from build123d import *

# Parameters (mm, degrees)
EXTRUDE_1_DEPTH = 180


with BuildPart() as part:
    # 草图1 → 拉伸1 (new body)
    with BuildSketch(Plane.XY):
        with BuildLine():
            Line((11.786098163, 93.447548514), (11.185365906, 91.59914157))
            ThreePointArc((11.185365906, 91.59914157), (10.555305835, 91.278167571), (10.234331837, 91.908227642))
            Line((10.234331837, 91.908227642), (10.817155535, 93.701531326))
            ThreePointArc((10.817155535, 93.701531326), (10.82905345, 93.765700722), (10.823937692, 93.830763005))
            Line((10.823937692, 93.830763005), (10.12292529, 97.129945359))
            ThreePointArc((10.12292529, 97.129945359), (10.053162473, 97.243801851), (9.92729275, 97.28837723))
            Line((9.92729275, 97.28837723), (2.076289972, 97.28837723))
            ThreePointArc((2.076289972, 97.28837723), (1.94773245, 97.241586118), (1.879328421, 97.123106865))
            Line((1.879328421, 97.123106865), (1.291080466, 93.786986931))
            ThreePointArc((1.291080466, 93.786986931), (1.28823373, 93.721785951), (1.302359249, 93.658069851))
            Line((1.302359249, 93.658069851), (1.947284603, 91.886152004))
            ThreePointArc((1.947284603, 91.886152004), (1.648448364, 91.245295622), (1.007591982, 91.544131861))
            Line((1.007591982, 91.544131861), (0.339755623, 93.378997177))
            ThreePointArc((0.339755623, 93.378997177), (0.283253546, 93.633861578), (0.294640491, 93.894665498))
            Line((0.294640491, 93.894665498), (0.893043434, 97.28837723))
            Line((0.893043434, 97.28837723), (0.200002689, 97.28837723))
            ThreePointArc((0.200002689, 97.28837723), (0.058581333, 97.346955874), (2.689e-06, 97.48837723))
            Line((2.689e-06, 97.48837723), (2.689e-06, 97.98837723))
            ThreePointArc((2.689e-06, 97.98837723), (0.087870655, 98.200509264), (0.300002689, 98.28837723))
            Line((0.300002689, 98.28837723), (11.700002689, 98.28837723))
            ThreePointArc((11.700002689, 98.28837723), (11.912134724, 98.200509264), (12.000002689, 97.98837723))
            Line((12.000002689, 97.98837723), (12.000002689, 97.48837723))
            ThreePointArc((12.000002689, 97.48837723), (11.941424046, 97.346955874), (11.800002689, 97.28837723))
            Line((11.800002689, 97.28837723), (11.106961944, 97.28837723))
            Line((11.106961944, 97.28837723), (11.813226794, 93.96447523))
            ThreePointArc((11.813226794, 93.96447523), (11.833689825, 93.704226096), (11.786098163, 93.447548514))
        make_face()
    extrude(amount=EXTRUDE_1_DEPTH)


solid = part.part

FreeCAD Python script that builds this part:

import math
import FreeCAD as App
import Part
import Sketcher
from FreeCAD import Vector
Q = App.Units.Quantity

doc = App.newDocument("Part")
params = doc.addObject("Spreadsheet::Sheet", "Params")
for row, (alias, value) in enumerate([
    ("sketch1_radius", "1 mm"),
    ("sketch1_radius2", "0.2 mm"),
    ("sketch1_radius3", "0.3 mm"),
    ("sketch1_radius4", "0.5 mm"),
    ("sketch1_radius5", "0.25 mm"),
    ("pad1_length", "180 mm"),
], start=1):
    params.set(f"A{row}", alias)
    params.set(f"B{row}", "=" + value)
    params.setAlias(f"B{row}", alias)

body = doc.addObject("PartDesign::Body", "Body")

# Sketch on XY plane
sketch1 = body.newObject("Sketcher::SketchObject", "Sketch")
sketch1.AttachmentSupport = (doc.getObject("XY_Plane"), [""])
sketch1.MapMode = "FlatFace"
sketch1.addGeometry(Part.LineSegment(Vector(11.19, 91.6, 0), Vector(11.79, 93.45, 0)), False)
sketch1.addGeometry(Part.ArcOfCircle(Part.Circle(Vector(10.84, 93.76, 0), Vector(0, 0, 1), 1), math.radians(-18), math.radians(12)), False)
sketch1.addGeometry(Part.LineSegment(Vector(11.81, 93.96, 0), Vector(11.11, 97.29, 0)), False)
sketch1.addGeometry(Part.LineSegment(Vector(11.11, 97.29, 0), Vector(11.8, 97.29, 0)), False)
sketch1.addGeometry(Part.ArcOfCircle(Part.Circle(Vector(11.8, 97.49, 0), Vector(0, 0, 1), 0.2), math.radians(-90), math.radians(0)), False)
sketch1.addGeometry(Part.LineSegment(Vector(12, 97.49, 0), Vector(12, 97.99, 0)), False)
sketch1.addGeometry(Part.ArcOfCircle(Part.Circle(Vector(11.7, 97.99, 0), Vector(0, 0, 1), 0.3), math.radians(0), math.radians(90)), False)
sketch1.addGeometry(Part.LineSegment(Vector(11.7, 98.29, 0), Vector(0.3, 98.29, 0)), False)
sketch1.addGeometry(Part.ArcOfCircle(Part.Circle(Vector(0.3, 97.99, 0), Vector(0, 0, 1), 0.3), math.radians(90), math.radians(180)), False)
sketch1.addGeometry(Part.LineSegment(Vector(0, 97.99, 0), Vector(0, 97.49, 0)), False)
sketch1.addGeometry(Part.ArcOfCircle(Part.Circle(Vector(0.2, 97.49, 0), Vector(0, 0, 1), 0.2), math.radians(-180), math.radians(-90)), False)
sketch1.addGeometry(Part.LineSegment(Vector(0.2, 97.29, 0), Vector(0.89, 97.29, 0)), False)
sketch1.addGeometry(Part.LineSegment(Vector(0.89, 97.29, 0), Vector(0.29, 93.89, 0)), False)
sketch1.addGeometry(Part.ArcOfCircle(Part.Circle(Vector(1.28, 93.72, 0), Vector(0, 0, 1), 1), math.radians(170), math.radians(200)), False)
sketch1.addGeometry(Part.LineSegment(Vector(0.34, 93.38, 0), Vector(1.01, 91.54, 0)), False)
sketch1.addGeometry(Part.ArcOfCircle(Part.Circle(Vector(1.48, 91.72, 0), Vector(0, 0, 1), 0.5), math.radians(-160), math.radians(20)), False)
sketch1.addGeometry(Part.LineSegment(Vector(1.95, 91.89, 0), Vector(1.3, 93.66, 0)), False)
sketch1.addGeometry(Part.ArcOfCircle(Part.Circle(Vector(1.54, 93.74, 0), Vector(0, 0, 1), 0.25), math.radians(170), math.radians(200)), False)
sketch1.addGeometry(Part.LineSegment(Vector(1.29, 93.79, 0), Vector(1.88, 97.12, 0)), False)
sketch1.addGeometry(Part.ArcOfCircle(Part.Circle(Vector(2.08, 97.09, 0), Vector(0, 0, 1), 0.2), math.radians(90), math.radians(170)), False)
sketch1.addGeometry(Part.LineSegment(Vector(2.08, 97.29, 0), Vector(9.93, 97.29, 0)), False)
sketch1.addGeometry(Part.ArcOfCircle(Part.Circle(Vector(9.93, 97.09, 0), Vector(0, 0, 1), 0.2), math.radians(12), math.radians(90)), False)
sketch1.addGeometry(Part.LineSegment(Vector(10.12, 97.13, 0), Vector(10.82, 93.83, 0)), False)
sketch1.addGeometry(Part.ArcOfCircle(Part.Circle(Vector(10.58, 93.78, 0), Vector(0, 0, 1), 0.25), math.radians(-18), math.radians(12)), False)
sketch1.addGeometry(Part.LineSegment(Vector(10.82, 93.7, 0), Vector(10.23, 91.91, 0)), False)
sketch1.addGeometry(Part.ArcOfCircle(Part.Circle(Vector(10.71, 91.75, 0), Vector(0, 0, 1), 0.5), math.radians(162), math.radians(342)), False)
sketch1.addConstraint(Sketcher.Constraint("Tangent", 0, 2, 1, 1))
sketch1.addConstraint(Sketcher.Constraint("Tangent", 1, 2, 2, 1))
sketch1.addConstraint(Sketcher.Constraint("Coincident", 2, 2, 3, 1))
sketch1.addConstraint(Sketcher.Constraint("Tangent", 3, 2, 4, 1))
sketch1.addConstraint(Sketcher.Constraint("Tangent", 4, 2, 5, 1))
sketch1.addConstraint(Sketcher.Constraint("Tangent", 5, 2, 6, 1))
sketch1.addConstraint(Sketcher.Constraint("Tangent", 6, 2, 7, 1))
sketch1.addConstraint(Sketcher.Constraint("Tangent", 7, 2, 8, 1))
sketch1.addConstraint(Sketcher.Constraint("Tangent", 8, 2, 9, 1))
sketch1.addConstraint(Sketcher.Constraint("Tangent", 9, 2, 10, 1))
sketch1.addConstraint(Sketcher.Constraint("Tangent", 10, 2, 11, 1))
sketch1.addConstraint(Sketcher.Constraint("Coincident", 11, 2, 12, 1))
sketch1.addConstraint(Sketcher.Constraint("Tangent", 12, 2, 13, 1))
sketch1.addConstraint(Sketcher.Constraint("Tangent", 13, 2, 14, 1))
sketch1.addConstraint(Sketcher.Constraint("Tangent", 14, 2, 15, 1))
sketch1.addConstraint(Sketcher.Constraint("Tangent", 15, 2, 16, 1))
sketch1.addConstraint(Sketcher.Constraint("Tangent", 16, 2, 17, 2))
sketch1.addConstraint(Sketcher.Constraint("Tangent", 17, 1, 18, 1))
sketch1.addConstraint(Sketcher.Constraint("Tangent", 18, 2, 19, 2))
sketch1.addConstraint(Sketcher.Constraint("Tangent", 19, 1, 20, 1))
sketch1.addConstraint(Sketcher.Constraint("Tangent", 20, 2, 21, 2))
sketch1.addConstraint(Sketcher.Constraint("Tangent", 21, 1, 22, 1))
sketch1.addConstraint(Sketcher.Constraint("Tangent", 22, 2, 23, 2))
sketch1.addConstraint(Sketcher.Constraint("Tangent", 23, 1, 24, 1))
sketch1.addConstraint(Sketcher.Constraint("Tangent", 24, 2, 25, 1))
sketch1.addConstraint(Sketcher.Constraint("Tangent", 25, 2, 0, 1))
sketch1.addConstraint(Sketcher.Constraint("Horizontal", 3))
sketch1.addConstraint(Sketcher.Constraint("Vertical", 5))
sketch1.addConstraint(Sketcher.Constraint("Horizontal", 7))
sketch1.addConstraint(Sketcher.Constraint("Vertical", 9))
sketch1.addConstraint(Sketcher.Constraint("Horizontal", 11))
sketch1.addConstraint(Sketcher.Constraint("Horizontal", 20))
sketch1.addConstraint(Sketcher.Constraint("Equal", 6, 8))
sketch1.addConstraint(Sketcher.Constraint("Equal", 4, 10))
sketch1.addConstraint(Sketcher.Constraint("Equal", 1, 13))
sketch1.addConstraint(Sketcher.Constraint("Equal", 10, 19))
sketch1.addConstraint(Sketcher.Constraint("Equal", 19, 21))
sketch1.addConstraint(Sketcher.Constraint("Equal", 17, 23))
sketch1.addConstraint(Sketcher.Constraint("Equal", 15, 25))
sketch1.addConstraint(Sketcher.Constraint("Parallel", 14, 16))
sketch1.addConstraint(Sketcher.Constraint("Parallel", 12, 18))
sketch1.addConstraint(Sketcher.Constraint("Parallel", 2, 22))
sketch1.addConstraint(Sketcher.Constraint("Parallel", 0, 24))
sketch1.addConstraint(Sketcher.Constraint("Horizontal", 4, 3, 10, 3))
sketch1.addConstraint(Sketcher.Constraint("Horizontal", 11, 2, 19, 1))
sketch1.addConstraint(Sketcher.Constraint("Equal", 3, 11))
sketch1.addConstraint(Sketcher.Constraint("Equal", 16, 24))
sketch1.addConstraint(Sketcher.Constraint("Radius", 1, 1.0))
sketch1.addConstraint(Sketcher.Constraint("Radius", 4, 0.2))
sketch1.addConstraint(Sketcher.Constraint("Radius", 6, 0.3))
sketch1.addConstraint(Sketcher.Constraint("Radius", 15, 0.5))
sketch1.addConstraint(Sketcher.Constraint("Angle", 12, Q("-100 deg")))
sketch1.addConstraint(Sketcher.Constraint("Angle", 14, Q("-70 deg")))
sketch1.addConstraint(Sketcher.Constraint("Radius", 17, 0.25))
sketch1.addConstraint(Sketcher.Constraint("DistanceX", 7, 2, 7, 1, 11.4))
sketch1.addConstraint(Sketcher.Constraint("DistanceY", 5, 1, 5, 2, 0.5))
sketch1.addConstraint(Sketcher.Constraint("DistanceX", 3, 1, 3, 2, 0.693041))
sketch1.addConstraint(Sketcher.Constraint("DistanceX", -1, 1, 0, 2, 11.786098))
sketch1.addConstraint(Sketcher.Constraint("DistanceX", 23, 3, 0, 2, 1.206701))
sketch1.addConstraint(Sketcher.Constraint("DistanceY", 1, 2, 4, 3, 3.523902))
sketch1.addConstraint(Sketcher.Constraint("DistanceX", 1, 3, 25, 2, 0.350302))
sketch1.addConstraint(Sketcher.Constraint("DistanceX", 20, 1, 20, 2, 7.851003))
sketch1.addConstraint(Sketcher.Constraint("DistanceX", -1, 1, 13, 3, 1.279448))
sketch1.addConstraint(Sketcher.Constraint("DistanceX", -1, 1, 15, 3, 1.477438))
sketch1.addConstraint(Sketcher.Constraint("DistanceY", -1, 1, 15, 3, 91.715142))
sketch1.addConstraint(Sketcher.Constraint("DistanceX", -1, 1, 19, 3, 2.07629))
sketch1.setExpression("Constraints[47]", "Params.sketch1_radius")
sketch1.setExpression("Constraints[48]", "Params.sketch1_radius2")
sketch1.setExpression("Constraints[49]", "Params.sketch1_radius3")
sketch1.setExpression("Constraints[50]", "Params.sketch1_radius4")
sketch1.setExpression("Constraints[53]", "Params.sketch1_radius5")
pad1 = body.newObject("PartDesign::Pad", "Pad")
pad1.Profile = sketch1
pad1.setExpression("Length", "Params.pad1_length")

doc.recompute()
